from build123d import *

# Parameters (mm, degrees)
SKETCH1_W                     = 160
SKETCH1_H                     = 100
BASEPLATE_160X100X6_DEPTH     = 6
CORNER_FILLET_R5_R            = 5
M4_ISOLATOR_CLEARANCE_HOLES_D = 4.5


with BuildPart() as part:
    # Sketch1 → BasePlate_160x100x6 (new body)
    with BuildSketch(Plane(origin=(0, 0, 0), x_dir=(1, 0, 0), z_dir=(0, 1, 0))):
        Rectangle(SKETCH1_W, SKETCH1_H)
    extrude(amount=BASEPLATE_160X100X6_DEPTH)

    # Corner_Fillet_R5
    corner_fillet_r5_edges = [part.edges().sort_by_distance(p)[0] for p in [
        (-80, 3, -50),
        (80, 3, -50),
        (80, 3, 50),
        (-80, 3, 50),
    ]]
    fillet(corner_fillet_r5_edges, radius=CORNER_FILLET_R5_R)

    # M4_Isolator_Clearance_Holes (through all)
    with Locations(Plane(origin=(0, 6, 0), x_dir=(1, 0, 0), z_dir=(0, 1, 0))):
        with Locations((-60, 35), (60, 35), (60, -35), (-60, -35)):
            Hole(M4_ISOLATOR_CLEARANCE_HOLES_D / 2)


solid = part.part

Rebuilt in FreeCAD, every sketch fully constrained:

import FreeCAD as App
import Part
import Sketcher

V = App.Vector


def edges_at(feature, points):
    """Names of the edges that pass closest to the given points."""
    edges = feature.Shape.Edges
    near = lambda p: min(range(len(edges)), key=lambda i: edges[i].distToShape(Part.Vertex(*p))[0])
    return sorted({f"Edge{near(p) + 1}" for p in points})


def add_polygon(sketch, points):
    """Adds a closed chain of lines whose ends are joined by coincident constraints."""
    first, n = sketch.GeometryCount, len(points)
    for a, b in zip(points, points[1:] + points[:1]):
        sketch.addGeometry(Part.LineSegment(App.Vector(*a, 0), App.Vector(*b, 0)), False)
    for i in range(n):
        sketch.addConstraint(Sketcher.Constraint("Coincident", first + i, 2, first + (i + 1) % n, 1))

doc = App.newDocument("Part")
body = doc.addObject("PartDesign::Body", "Body")

sketch1 = body.newObject("Sketcher::SketchObject", "Sketch")
sketch1.AttachmentSupport = (doc.getObject("XZ_Plane"), [""])
sketch1.MapMode = "FlatFace"
add_polygon(sketch1, [(-80, -50), (-80, 50), (80, 50), (80, -50)])
sketch1.addConstraint(Sketcher.Constraint("Vertical", 0))
sketch1.addConstraint(Sketcher.Constraint("Horizontal", 1))
sketch1.addConstraint(Sketcher.Constraint("Vertical", 2))
sketch1.addConstraint(Sketcher.Constraint("Horizontal", 3))
sketch1.addConstraint(Sketcher.Constraint("Symmetric", 0, 2, 2, 2, -1, 1))
sketch1.addConstraint(Sketcher.Constraint("DistanceX", 1, 1, 1, 2, 160.0))
sketch1.addConstraint(Sketcher.Constraint("DistanceY", 0, 1, 0, 2, 100.0))
pad1 = body.newObject("PartDesign::Pad", "Pad")
pad1.Profile = sketch1
pad1.Length = 6
pad1.Reversed = True
doc.recompute()

fillet = body.newObject("PartDesign::Fillet", "Fillet")
fillet.Base = (pad1, edges_at(pad1, [
    (-80, 3, -50),
    (80, 3, -50),
    (80, 3, 50),
    (-80, 3, 50),
]))
fillet.Radius = 5

sketch2 = body.newObject("Sketcher::SketchObject", "Sketch001")
sketch2.AttachmentSupport = (doc.getObject("XZ_Plane"), [""])
sketch2.MapMode = "FlatFace"
sketch2.AttachmentOffset = App.Placement(V(0, 0, -6), App.Rotation())
sketch2.addGeometry(Part.Circle(V(-60, -35, 0), V(0, 0, 1), 2.25), False)
sketch2.addGeometry(Part.Circle(V(60, -35, 0), V(0, 0, 1), 2.25), False)
sketch2.addGeometry(Part.Circle(V(60, 35, 0), V(0, 0, 1), 2.25), False)
sketch2.addGeometry(Part.Circle(V(-60, 35, 0), V(0, 0, 1), 2.25), False)
sketch2.addConstraint(Sketcher.Constraint("Equal", 0, 1))
sketch2.addConstraint(Sketcher.Constraint("Equal", 1, 2))
sketch2.addConstraint(Sketcher.Constraint("Equal", 2, 3))
sketch2.addConstraint(Sketcher.Constraint("Symmetric", 0, 3, 2, 3, -1, 1))
sketch2.addConstraint(Sketcher.Constraint("Symmetric", 1, 3, 3, 3, -1, 1))
sketch2.addConstraint(Sketcher.Constraint("Symmetric", 0, 3, 1, 3, -2))
sketch2.addConstraint(Sketcher.Constraint("Diameter", 0, 4.5))
sketch2.addConstraint(Sketcher.Constraint("DistanceX", 0, 3, -1, 1, 60.0))
sketch2.addConstraint(Sketcher.Constraint("DistanceY", 0, 3, -1, 1, 35.0))
doc.recompute()
hole = body.newObject("PartDesign::Hole", "Hole")
hole.Profile = sketch2
hole.ThreadType = "None"
hole.Diameter = 4.5
hole.DepthType = "ThroughAll"
hole.Reversed = True

doc.recompute()
